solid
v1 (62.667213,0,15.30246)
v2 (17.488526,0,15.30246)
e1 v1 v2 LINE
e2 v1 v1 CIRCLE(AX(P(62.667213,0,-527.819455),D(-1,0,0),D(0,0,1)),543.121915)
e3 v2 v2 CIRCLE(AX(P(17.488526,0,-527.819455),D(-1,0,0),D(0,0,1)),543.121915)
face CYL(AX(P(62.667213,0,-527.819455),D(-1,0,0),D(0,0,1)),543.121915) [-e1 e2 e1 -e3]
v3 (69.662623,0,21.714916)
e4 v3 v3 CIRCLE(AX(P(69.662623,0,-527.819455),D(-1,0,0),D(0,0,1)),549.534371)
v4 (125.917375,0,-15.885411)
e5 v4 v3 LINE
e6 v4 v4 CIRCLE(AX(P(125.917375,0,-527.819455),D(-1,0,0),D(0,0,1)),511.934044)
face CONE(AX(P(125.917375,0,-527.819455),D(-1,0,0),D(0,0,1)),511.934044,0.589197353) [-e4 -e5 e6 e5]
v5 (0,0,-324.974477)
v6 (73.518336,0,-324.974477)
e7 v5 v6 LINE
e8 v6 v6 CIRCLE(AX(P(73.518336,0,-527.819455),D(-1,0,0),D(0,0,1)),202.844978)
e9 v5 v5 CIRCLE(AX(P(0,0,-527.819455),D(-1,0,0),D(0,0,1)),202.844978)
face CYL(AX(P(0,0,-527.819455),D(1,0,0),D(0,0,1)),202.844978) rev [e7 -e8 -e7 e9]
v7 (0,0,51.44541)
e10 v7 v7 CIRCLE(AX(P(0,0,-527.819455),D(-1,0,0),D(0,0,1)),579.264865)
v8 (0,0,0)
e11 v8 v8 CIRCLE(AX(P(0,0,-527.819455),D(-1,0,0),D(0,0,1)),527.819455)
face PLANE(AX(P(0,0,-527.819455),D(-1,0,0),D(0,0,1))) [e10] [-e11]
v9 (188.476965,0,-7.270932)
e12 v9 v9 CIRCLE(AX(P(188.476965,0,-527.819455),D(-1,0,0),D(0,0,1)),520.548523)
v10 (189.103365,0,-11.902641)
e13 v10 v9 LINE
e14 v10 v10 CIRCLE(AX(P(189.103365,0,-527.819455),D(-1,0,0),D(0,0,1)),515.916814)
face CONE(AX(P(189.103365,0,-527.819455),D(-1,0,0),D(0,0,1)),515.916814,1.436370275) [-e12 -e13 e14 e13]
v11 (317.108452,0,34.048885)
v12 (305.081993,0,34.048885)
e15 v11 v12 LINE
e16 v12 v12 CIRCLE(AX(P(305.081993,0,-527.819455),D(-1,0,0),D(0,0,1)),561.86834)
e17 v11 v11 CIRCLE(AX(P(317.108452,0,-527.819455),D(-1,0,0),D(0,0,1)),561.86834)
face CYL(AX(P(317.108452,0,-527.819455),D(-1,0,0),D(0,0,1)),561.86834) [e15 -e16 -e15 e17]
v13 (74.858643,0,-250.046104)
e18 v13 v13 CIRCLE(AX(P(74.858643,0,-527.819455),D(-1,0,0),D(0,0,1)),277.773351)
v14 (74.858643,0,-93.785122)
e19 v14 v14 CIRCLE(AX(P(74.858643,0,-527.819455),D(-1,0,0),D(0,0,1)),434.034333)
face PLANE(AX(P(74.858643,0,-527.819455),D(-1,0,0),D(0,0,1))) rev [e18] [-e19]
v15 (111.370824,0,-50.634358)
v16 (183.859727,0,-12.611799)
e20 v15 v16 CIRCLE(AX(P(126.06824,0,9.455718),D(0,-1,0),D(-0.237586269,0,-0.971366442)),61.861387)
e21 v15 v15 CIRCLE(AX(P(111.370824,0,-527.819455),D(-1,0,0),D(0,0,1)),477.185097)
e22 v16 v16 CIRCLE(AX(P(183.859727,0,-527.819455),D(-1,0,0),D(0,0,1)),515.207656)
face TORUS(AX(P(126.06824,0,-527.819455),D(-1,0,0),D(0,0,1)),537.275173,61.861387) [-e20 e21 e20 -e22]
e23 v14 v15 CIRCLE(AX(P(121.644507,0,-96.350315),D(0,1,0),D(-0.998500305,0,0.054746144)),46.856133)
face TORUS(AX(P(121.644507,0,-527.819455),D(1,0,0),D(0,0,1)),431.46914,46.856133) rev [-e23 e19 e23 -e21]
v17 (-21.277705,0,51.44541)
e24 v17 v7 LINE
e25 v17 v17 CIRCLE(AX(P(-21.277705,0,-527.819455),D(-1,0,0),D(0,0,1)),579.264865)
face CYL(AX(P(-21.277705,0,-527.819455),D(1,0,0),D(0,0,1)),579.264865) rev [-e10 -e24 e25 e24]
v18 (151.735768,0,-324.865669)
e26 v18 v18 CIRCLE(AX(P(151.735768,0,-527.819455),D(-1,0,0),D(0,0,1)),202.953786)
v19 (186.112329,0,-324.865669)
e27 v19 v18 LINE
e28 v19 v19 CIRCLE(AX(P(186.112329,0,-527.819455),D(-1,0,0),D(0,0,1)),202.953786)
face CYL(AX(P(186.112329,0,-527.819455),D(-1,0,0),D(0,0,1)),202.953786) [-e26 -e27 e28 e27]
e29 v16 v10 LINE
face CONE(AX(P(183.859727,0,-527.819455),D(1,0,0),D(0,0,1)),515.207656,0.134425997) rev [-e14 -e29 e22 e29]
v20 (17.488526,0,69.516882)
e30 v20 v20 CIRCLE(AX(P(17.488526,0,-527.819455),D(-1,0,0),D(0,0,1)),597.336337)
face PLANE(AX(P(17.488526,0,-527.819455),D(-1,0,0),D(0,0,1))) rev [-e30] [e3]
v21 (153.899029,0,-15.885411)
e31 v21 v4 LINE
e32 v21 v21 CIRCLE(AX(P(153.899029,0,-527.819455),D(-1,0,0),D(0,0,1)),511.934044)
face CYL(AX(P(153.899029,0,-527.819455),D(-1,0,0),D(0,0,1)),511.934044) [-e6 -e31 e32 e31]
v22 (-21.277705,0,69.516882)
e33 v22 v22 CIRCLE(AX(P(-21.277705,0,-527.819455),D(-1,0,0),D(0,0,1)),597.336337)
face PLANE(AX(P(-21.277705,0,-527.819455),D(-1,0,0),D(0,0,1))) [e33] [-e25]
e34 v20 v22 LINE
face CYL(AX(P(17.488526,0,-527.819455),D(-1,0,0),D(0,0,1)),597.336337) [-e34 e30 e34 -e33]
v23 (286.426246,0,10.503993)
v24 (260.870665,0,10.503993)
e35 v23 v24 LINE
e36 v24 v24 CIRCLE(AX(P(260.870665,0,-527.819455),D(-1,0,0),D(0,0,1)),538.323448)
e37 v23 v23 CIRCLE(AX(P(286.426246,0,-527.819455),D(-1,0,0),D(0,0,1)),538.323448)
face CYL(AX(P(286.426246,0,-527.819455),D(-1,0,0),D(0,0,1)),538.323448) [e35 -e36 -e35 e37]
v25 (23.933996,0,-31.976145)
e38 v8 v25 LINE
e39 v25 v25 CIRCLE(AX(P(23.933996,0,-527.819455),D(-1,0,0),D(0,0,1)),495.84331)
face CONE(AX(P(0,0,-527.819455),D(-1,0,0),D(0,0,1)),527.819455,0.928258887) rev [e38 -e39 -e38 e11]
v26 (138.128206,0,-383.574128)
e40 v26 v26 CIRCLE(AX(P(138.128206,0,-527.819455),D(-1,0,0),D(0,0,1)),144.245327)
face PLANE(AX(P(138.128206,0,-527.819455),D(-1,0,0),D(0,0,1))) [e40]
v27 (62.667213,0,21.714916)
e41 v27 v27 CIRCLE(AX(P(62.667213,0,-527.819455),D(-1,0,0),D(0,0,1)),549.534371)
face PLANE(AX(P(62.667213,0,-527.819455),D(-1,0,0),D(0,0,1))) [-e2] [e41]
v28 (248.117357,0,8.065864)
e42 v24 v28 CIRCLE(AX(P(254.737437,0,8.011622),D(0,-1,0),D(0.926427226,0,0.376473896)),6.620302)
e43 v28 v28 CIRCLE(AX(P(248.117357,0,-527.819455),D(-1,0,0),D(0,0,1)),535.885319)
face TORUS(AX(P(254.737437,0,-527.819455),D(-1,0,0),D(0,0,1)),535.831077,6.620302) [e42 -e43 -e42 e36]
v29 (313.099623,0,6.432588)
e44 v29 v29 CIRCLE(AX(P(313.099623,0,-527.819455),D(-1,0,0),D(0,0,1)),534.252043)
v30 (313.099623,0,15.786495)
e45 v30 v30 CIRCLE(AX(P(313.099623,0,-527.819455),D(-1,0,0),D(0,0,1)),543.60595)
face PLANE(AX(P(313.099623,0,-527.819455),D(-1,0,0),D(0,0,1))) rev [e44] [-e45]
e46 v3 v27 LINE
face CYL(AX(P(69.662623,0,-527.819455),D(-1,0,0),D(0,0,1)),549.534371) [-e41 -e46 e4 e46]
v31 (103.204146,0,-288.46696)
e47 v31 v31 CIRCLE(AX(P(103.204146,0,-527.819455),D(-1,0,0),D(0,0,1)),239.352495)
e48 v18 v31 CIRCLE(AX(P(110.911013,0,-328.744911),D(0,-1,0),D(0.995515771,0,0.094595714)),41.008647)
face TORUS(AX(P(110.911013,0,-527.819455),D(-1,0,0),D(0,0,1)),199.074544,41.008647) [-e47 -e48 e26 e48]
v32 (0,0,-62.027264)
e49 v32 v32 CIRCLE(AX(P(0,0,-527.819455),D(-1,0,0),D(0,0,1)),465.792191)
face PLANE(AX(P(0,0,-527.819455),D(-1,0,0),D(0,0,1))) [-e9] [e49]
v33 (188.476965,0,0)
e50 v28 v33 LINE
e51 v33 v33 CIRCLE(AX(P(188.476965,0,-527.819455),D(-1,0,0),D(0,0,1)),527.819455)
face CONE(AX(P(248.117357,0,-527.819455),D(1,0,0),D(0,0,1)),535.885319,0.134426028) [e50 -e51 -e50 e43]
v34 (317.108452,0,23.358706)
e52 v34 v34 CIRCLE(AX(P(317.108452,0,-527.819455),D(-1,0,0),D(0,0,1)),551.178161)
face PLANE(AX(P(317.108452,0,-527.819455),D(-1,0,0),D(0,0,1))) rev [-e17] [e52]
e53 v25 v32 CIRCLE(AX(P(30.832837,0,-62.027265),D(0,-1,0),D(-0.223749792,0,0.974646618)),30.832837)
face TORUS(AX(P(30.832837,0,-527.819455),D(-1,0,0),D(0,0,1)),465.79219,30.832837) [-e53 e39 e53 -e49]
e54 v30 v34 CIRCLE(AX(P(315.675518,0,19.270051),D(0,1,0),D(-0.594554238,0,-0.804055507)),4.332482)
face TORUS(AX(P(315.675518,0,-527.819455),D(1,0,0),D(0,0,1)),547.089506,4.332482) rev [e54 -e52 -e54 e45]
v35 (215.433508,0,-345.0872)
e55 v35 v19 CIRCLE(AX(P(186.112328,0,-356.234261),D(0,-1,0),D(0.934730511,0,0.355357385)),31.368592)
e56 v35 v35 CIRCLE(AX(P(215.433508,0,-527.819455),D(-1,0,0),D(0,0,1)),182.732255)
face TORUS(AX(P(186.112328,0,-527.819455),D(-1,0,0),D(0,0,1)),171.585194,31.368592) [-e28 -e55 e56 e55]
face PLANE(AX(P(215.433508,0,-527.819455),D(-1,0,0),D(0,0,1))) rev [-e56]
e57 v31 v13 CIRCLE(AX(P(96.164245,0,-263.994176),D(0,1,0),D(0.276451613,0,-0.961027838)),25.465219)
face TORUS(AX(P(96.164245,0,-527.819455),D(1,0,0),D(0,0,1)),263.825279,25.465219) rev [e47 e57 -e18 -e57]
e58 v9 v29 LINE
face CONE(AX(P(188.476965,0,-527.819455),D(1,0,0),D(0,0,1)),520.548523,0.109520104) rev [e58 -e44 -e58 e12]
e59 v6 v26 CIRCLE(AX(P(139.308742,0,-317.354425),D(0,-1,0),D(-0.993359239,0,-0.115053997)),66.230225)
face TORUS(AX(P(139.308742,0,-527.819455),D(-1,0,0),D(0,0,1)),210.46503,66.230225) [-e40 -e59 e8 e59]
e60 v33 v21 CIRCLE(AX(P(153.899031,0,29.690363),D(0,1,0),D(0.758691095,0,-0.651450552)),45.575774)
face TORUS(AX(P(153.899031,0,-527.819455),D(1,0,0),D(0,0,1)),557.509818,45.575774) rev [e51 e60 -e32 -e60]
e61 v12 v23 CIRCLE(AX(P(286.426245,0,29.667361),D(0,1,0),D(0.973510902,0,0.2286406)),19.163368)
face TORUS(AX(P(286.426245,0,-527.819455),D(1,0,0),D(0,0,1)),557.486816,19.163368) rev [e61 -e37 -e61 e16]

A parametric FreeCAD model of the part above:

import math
import FreeCAD as App
import Part
import Sketcher
from FreeCAD import Vector

doc = App.newDocument("Part")
params = doc.addObject("Spreadsheet::Sheet", "Params")
for row, (alias, value) in enumerate([
    ("revolution_angle", "360 deg"),
], start=1):
    params.set(f"A{row}", alias)
    params.set(f"B{row}", "=" + value)
    params.setAlias(f"B{row}", alias)

body = doc.addObject("PartDesign::Body", "Body")

# Sketch on XZ plane
sketch1 = body.newObject("Sketcher::SketchObject", "Sketch")
sketch1.AttachmentSupport = (doc.getObject("XZ_Plane"), [""])
sketch1.MapMode = "FlatFace"
sketch1.addGeometry(Part.LineSegment(Vector(0, 51.4, 0), Vector(0, 0, 0)), False)
sketch1.addGeometry(Part.LineSegment(Vector(0, 0, 0), Vector(23.9, -32, 0)), False)
sketch1.addGeometry(Part.ArcOfCircle(Part.Circle(Vector(30.8, -62, 0), Vector(0, 0, 1), 30.8), math.radians(103), math.radians(180)), False)
sketch1.addGeometry(Part.LineSegment(Vector(0, -62, 0), Vector(0, -325, 0)), False)
sketch1.addGeometry(Part.LineSegment(Vector(0, -325, 0), Vector(73.5, -325, 0)), False)
sketch1.addGeometry(Part.ArcOfCircle(Part.Circle(Vector(139.3, -317.4, 0), Vector(0, 0, 1), 66.2), math.radians(-173), math.radians(-91)), False)
sketch1.addGeometry(Part.LineSegment(Vector(138.1, -383.6, 0), Vector(138.1, -527.8, 0)), False)
sketch1.addGeometry(Part.LineSegment(Vector(138.1, -527.8, 0), Vector(215.4, -527.8, 0)), False)
sketch1.addGeometry(Part.LineSegment(Vector(215.4, -527.8, 0), Vector(215.4, -345.1, 0)), False)
sketch1.addGeometry(Part.ArcOfCircle(Part.Circle(Vector(186.1, -356.2, 0), Vector(0, 0, 1), 31.4), math.radians(21), math.radians(90)), False)
sketch1.addGeometry(Part.LineSegment(Vector(186.1, -324.9, 0), Vector(151.7, -324.9, 0)), False)
sketch1.addGeometry(Part.ArcOfCircle(Part.Circle(Vector(110.9, -328.7, 0), Vector(0, 0, 1), 41), math.radians(5), math.radians(101)), False)
sketch1.addGeometry(Part.ArcOfCircle(Part.Circle(Vector(96.2, -264, 0), Vector(0, 0, 1), 25.5), math.radians(147), math.radians(286)), False)
sketch1.addGeometry(Part.LineSegment(Vector(74.9, -250, 0), Vector(74.9, -93.8, 0)), False)
sketch1.addGeometry(Part.ArcOfCircle(Part.Circle(Vector(121.6, -96.4, 0), Vector(0, 0, 1), 46.9), math.radians(103), math.radians(177)), False)
sketch1.addGeometry(Part.ArcOfCircle(Part.Circle(Vector(126.1, 9.5, 0), Vector(0, 0, 1), 61.9), math.radians(-104), math.radians(-21)), False)
sketch1.addGeometry(Part.LineSegment(Vector(183.9, -12.6, 0), Vector(189.1, -11.9, 0)), False)
sketch1.addGeometry(Part.LineSegment(Vector(189.1, -11.9, 0), Vector(188.5, -7.3, 0)), False)
sketch1.addGeometry(Part.LineSegment(Vector(188.5, -7.3, 0), Vector(313.1, 6.4, 0)), False)
sketch1.addGeometry(Part.LineSegment(Vector(313.1, 6.4, 0), Vector(313.1, 15.8, 0)), False)
sketch1.addGeometry(Part.ArcOfCircle(Part.Circle(Vector(315.7, 19.3, 0), Vector(0, 0, 1), 4.3), math.radians(71), math.radians(234)), False)
sketch1.addGeometry(Part.LineSegment(Vector(317.1, 23.4, 0), Vector(317.1, 34, 0)), False)
sketch1.addGeometry(Part.LineSegment(Vector(317.1, 34, 0), Vector(305.1, 34, 0)), False)
sketch1.addGeometry(Part.ArcOfCircle(Part.Circle(Vector(286.4, 29.7, 0), Vector(0, 0, 1), 19.2), math.radians(-90), math.radians(13)), False)
sketch1.addGeometry(Part.LineSegment(Vector(286.4, 10.5, 0), Vector(260.9, 10.5, 0)), False)
sketch1.addGeometry(Part.ArcOfCircle(Part.Circle(Vector(254.7, 8, 0), Vector(0, 0, 1), 6.6), math.radians(22), math.radians(180)), False)
sketch1.addGeometry(Part.LineSegment(Vector(248.1, 8.1, 0), Vector(188.5, 0, 0)), False)
sketch1.addGeometry(Part.ArcOfCircle(Part.Circle(Vector(153.9, 29.7, 0), Vector(0, 0, 1), 45.6), math.radians(-90), math.radians(-41)), False)
sketch1.addGeometry(Part.LineSegment(Vector(153.9, -15.9, 0), Vector(125.9, -15.9, 0)), False)
sketch1.addGeometry(Part.LineSegment(Vector(125.9, -15.9, 0), Vector(69.7, 21.7, 0)), False)
sketch1.addGeometry(Part.LineSegment(Vector(69.7, 21.7, 0), Vector(62.7, 21.7, 0)), False)
sketch1.addGeometry(Part.LineSegment(Vector(62.7, 21.7, 0), Vector(62.7, 15.3, 0)), False)
sketch1.addGeometry(Part.LineSegment(Vector(62.7, 15.3, 0), Vector(17.5, 15.3, 0)), False)
sketch1.addGeometry(Part.LineSegment(Vector(17.5, 15.3, 0), Vector(17.5, 69.5, 0)), False)
sketch1.addGeometry(Part.LineSegment(Vector(17.5, 69.5, 0), Vector(-21.3, 69.5, 0)), False)
sketch1.addGeometry(Part.LineSegment(Vector(-21.3, 69.5, 0), Vector(-21.3, 51.4, 0)), False)
sketch1.addGeometry(Part.LineSegment(Vector(-21.3, 51.4, 0), Vector(0, 51.4, 0)), False)
sketch1.addGeometry(Part.LineSegment(Vector(317.1, -527.8, 0), Vector(-21.3, -527.8, 0)), True)  # axis
sketch1.addConstraint(Sketcher.Constraint("Coincident", 0, 2, 1, 1))
sketch1.addConstraint(Sketcher.Constraint("Coincident", 1, 2, 2, 1))
sketch1.addConstraint(Sketcher.Constraint("Tangent", 2, 2, 3, 1))
sketch1.addConstraint(Sketcher.Constraint("Coincident", 3, 2, 4, 1))
sketch1.addConstraint(Sketcher.Constraint("Coincident", 4, 2, 5, 1))
sketch1.addConstraint(Sketcher.Constraint("Coincident", 5, 2, 6, 1))
sketch1.addConstraint(Sketcher.Constraint("Coincident", 6, 2, 7, 1))
sketch1.addConstraint(Sketcher.Constraint("Coincident", 7, 2, 8, 1))
sketch1.addConstraint(Sketcher.Constraint("Coincident", 8, 2, 9, 1))
sketch1.addConstraint(Sketcher.Constraint("Tangent", 9, 2, 10, 1))
sketch1.addConstraint(Sketcher.Constraint("Coincident", 10, 2, 11, 1))
sketch1.addConstraint(Sketcher.Constraint("Coincident", 11, 2, 12, 2))
sketch1.addConstraint(Sketcher.Constraint("Coincident", 12, 1, 13, 1))
sketch1.addConstraint(Sketcher.Constraint("Coincident", 13, 2, 14, 2))
sketch1.addConstraint(Sketcher.Constraint("Coincident", 14, 1, 15, 1))
sketch1.addConstraint(Sketcher.Constraint("Coincident", 15, 2, 16, 1))
sketch1.addConstraint(Sketcher.Constraint("Coincident", 16, 2, 17, 1))
sketch1.addConstraint(Sketcher.Constraint("Coincident", 17, 2, 18, 1))
sketch1.addConstraint(Sketcher.Constraint("Coincident", 18, 2, 19, 1))
sketch1.addConstraint(Sketcher.Constraint("Coincident", 19, 2, 20, 2))
sketch1.addConstraint(Sketcher.Constraint("Coincident", 20, 1, 21, 1))
sketch1.addConstraint(Sketcher.Constraint("Coincident", 21, 2, 22, 1))
sketch1.addConstraint(Sketcher.Constraint("Coincident", 22, 2, 23, 2))
sketch1.addConstraint(Sketcher.Constraint("Tangent", 23, 1, 24, 1))
sketch1.addConstraint(Sketcher.Constraint("Coincident", 24, 2, 25, 1))
sketch1.addConstraint(Sketcher.Constraint("Coincident", 25, 2, 26, 1))
sketch1.addConstraint(Sketcher.Constraint("Coincident", 26, 2, 27, 2))
sketch1.addConstraint(Sketcher.Constraint("Tangent", 27, 1, 28, 1))
sketch1.addConstraint(Sketcher.Constraint("Coincident", 28, 2, 29, 1))
sketch1.addConstraint(Sketcher.Constraint("Coincident", 29, 2, 30, 1))
sketch1.addConstraint(Sketcher.Constraint("Coincident", 30, 2, 31, 1))
sketch1.addConstraint(Sketcher.Constraint("Coincident", 31, 2, 32, 1))
sketch1.addConstraint(Sketcher.Constraint("Coincident", 32, 2, 33, 1))
sketch1.addConstraint(Sketcher.Constraint("Coincident", 33, 2, 34, 1))
sketch1.addConstraint(Sketcher.Constraint("Coincident", 34, 2, 35, 1))
sketch1.addConstraint(Sketcher.Constraint("Coincident", 35, 2, 36, 1))
sketch1.addConstraint(Sketcher.Constraint("Coincident", 36, 2, 0, 1))
sketch1.addConstraint(Sketcher.Constraint("Vertical", 0))
sketch1.addConstraint(Sketcher.Constraint("Vertical", 3))
sketch1.addConstraint(Sketcher.Constraint("Horizontal", 4))
sketch1.addConstraint(Sketcher.Constraint("Vertical", 6))
sketch1.addConstraint(Sketcher.Constraint("Horizontal", 7))
sketch1.addConstraint(Sketcher.Constraint("Vertical", 8))
sketch1.addConstraint(Sketcher.Constraint("Horizontal", 10))
sketch1.addConstraint(Sketcher.Constraint("Vertical", 13))
sketch1.addConstraint(Sketcher.Constraint("Vertical", 19))
sketch1.addConstraint(Sketcher.Constraint("Vertical", 21))
sketch1.addConstraint(Sketcher.Constraint("Horizontal", 22))
sketch1.addConstraint(Sketcher.Constraint("Horizontal", 24))
sketch1.addConstraint(Sketcher.Constraint("Horizontal", 28))
sketch1.addConstraint(Sketcher.Constraint("Horizontal", 30))
sketch1.addConstraint(Sketcher.Constraint("Vertical", 31))
sketch1.addConstraint(Sketcher.Constraint("Horizontal", 32))
sketch1.addConstraint(Sketcher.Constraint("Vertical", 33))
sketch1.addConstraint(Sketcher.Constraint("Horizontal", 34))
sketch1.addConstraint(Sketcher.Constraint("Vertical", 35))
sketch1.addConstraint(Sketcher.Constraint("Horizontal", 36))
sketch1.addConstraint(Sketcher.Constraint("Horizontal", 37))
sketch1.addConstraint(Sketcher.Constraint("Coincident", 0, 2, -1, 1))
sketch1.addConstraint(Sketcher.Constraint("PointOnObject", 2, 2, -2))
sketch1.addConstraint(Sketcher.Constraint("PointOnObject", 26, 2, -1))
sketch1.addConstraint(Sketcher.Constraint("Perpendicular", 16, 17))
sketch1.addConstraint(Sketcher.Constraint("Perpendicular", 17, 26))
sketch1.addConstraint(Sketcher.Constraint("Horizontal", 7, 2, 37, 1))
sketch1.addConstraint(Sketcher.Constraint("Vertical", 17, 2, 26, 2))
sketch1.addConstraint(Sketcher.Constraint("Vertical", 21, 2, 37, 1))
sketch1.addConstraint(Sketcher.Constraint("Vertical", 35, 2, 37, 2))
sketch1.addConstraint(Sketcher.Constraint("Radius", 9, 31.368592))
sketch1.addConstraint(Sketcher.Constraint("Radius", 12, 25.465219))
sketch1.addConstraint(Sketcher.Constraint("Radius", 20, 4.332482))
sketch1.addConstraint(Sketcher.Constraint("Radius", 23, 19.163368))
sketch1.addConstraint(Sketcher.Constraint("DistanceX", 7, 1, 7, 2, 77.305302))
sketch1.addConstraint(Sketcher.Constraint("Radius", 2, 30.832837))
sketch1.addConstraint(Sketcher.Constraint("Radius", 5, 66.230225))
sketch1.addConstraint(Sketcher.Constraint("Radius", 11, 41.008647))
sketch1.addConstraint(Sketcher.Constraint("Radius", 14, 46.856133))
sketch1.addConstraint(Sketcher.Constraint("Radius", 15, 61.861387))
sketch1.addConstraint(Sketcher.Constraint("Radius", 25, 6.620302))
sketch1.addConstraint(Sketcher.Constraint("Radius", 27, 45.575774))
sketch1.addConstraint(Sketcher.Constraint("DistanceX", 12, 3, 23, 3, 190.262))
sketch1.addConstraint(Sketcher.Constraint("DistanceX", 10, 2, 10, 1, 34.376561))
sketch1.addConstraint(Sketcher.Constraint("DistanceX", 22, 2, 22, 1, 12.026459))
sketch1.addConstraint(Sketcher.Constraint("DistanceX", 24, 2, 24, 1, 25.555581))
sketch1.addConstraint(Sketcher.Constraint("DistanceX", 30, 2, 30, 1, 6.99541))
sketch1.addConstraint(Sketcher.Constraint("DistanceX", 34, 2, 34, 1, 38.766231))
sketch1.addConstraint(Sketcher.Constraint("DistanceY", 0, 2, 0, 1, 51.44541))
sketch1.addConstraint(Sketcher.Constraint("DistanceY", 21, 1, 21, 2, 10.690179))
sketch1.addConstraint(Sketcher.Constraint("DistanceY", 35, 2, 35, 1, 18.071472))
sketch1.addConstraint(Sketcher.Constraint("DistanceY", 8, 2, -1, 1, 345.0872))
sketch1.addConstraint(Sketcher.Constraint("DistanceY", 15, 2, -1, 1, 12.611799))
sketch1.addConstraint(Sketcher.Constraint("DistanceX", 2, 3, 25, 3, 223.9046))
sketch1.addConstraint(Sketcher.Constraint("DistanceY", 3, 2, 12, 3, 60.980301))
sketch1.addConstraint(Sketcher.Constraint("DistanceX", 12, 3, 11, 2, 7.039901))
sketch1.addConstraint(Sketcher.Constraint("DistanceX", 12, 1, 5, 3, 64.450099))
sketch1.addConstraint(Sketcher.Constraint("DistanceX", 17, 2, 16, 2, 0.6264))
sketch1.addConstraint(Sketcher.Constraint("DistanceY", 23, 1, 19, 2, 5.282502))
sketch1.addConstraint(Sketcher.Constraint("DistanceY", 15, 3, 29, 2, 12.259198))
sketch1.addConstraint(Sketcher.Constraint("DistanceX", 29, 2, 14, 1, 41.708201))
sketch1.addConstraint(Sketcher.Constraint("Distance", 26, 60.183341))
sketch1.addConstraint(Sketcher.Constraint("Distance", 29, 67.66374))
sketch1.addConstraint(Sketcher.Constraint("DistanceX", 4, 1, 4, 2, 73.518336))
sketch1.addConstraint(Sketcher.Constraint("DistanceX", 28, 2, 28, 1, 27.981654))
sketch1.addConstraint(Sketcher.Constraint("DistanceX", 32, 2, 32, 1, 45.178687))
sketch1.addConstraint(Sketcher.Constraint("DistanceX", 36, 1, 36, 2, 21.277705))
sketch1.addConstraint(Sketcher.Constraint("DistanceX", 37, 2, 37, 1, 338.386157))
sketch1.addConstraint(Sketcher.Constraint("DistanceY", 3, 2, 3, 1, 262.947213))
sketch1.addConstraint(Sketcher.Constraint("DistanceY", 6, 2, 6, 1, 144.245327))
sketch1.addConstraint(Sketcher.Constraint("DistanceY", 8, 1, 8, 2, 182.732255))
sketch1.addConstraint(Sketcher.Constraint("DistanceY", 13, 1, 13, 2, 156.260982))
sketch1.addConstraint(Sketcher.Constraint("DistanceY", 19, 1, 19, 2, 9.353907))
sketch1.addConstraint(Sketcher.Constraint("DistanceY", 31, 2, 31, 1, 6.412456))
sketch1.addConstraint(Sketcher.Constraint("DistanceY", 33, 1, 33, 2, 54.214422))
sketch1.addConstraint(Sketcher.Constraint("DistanceX", -1, 1, 9, 3, 186.112328))
sketch1.addConstraint(Sketcher.Constraint("DistanceY", 9, 3, -1, 1, 356.234261))
sketch1.addConstraint(Sketcher.Constraint("DistanceY", 11, 3, -1, 1, 328.744911))
sketch1.addConstraint(Sketcher.Constraint("DistanceX", -1, 1, 15, 3, 126.06824))
sketch1.addConstraint(Sketcher.Constraint("DistanceX", -1, 1, 20, 3, 315.675518))
sketch1.addConstraint(Sketcher.Constraint("DistanceY", -1, 1, 20, 3, 19.270051))
sketch1.addConstraint(Sketcher.Constraint("DistanceY", -1, 1, 23, 3, 29.667361))
sketch1.addConstraint(Sketcher.Constraint("DistanceX", -1, 1, 27, 3, 153.899031))
sketch1.addConstraint(Sketcher.Constraint("DistanceX", 1, 2, 2, 3, 6.898841))
revolution = body.newObject("PartDesign::Revolution", "Revolution")
revolution.Profile = sketch1
revolution.ReferenceAxis = (sketch1, ["Axis0"])
revolution.setExpression("Angle", "Params.revolution_angle")

doc.recompute()
